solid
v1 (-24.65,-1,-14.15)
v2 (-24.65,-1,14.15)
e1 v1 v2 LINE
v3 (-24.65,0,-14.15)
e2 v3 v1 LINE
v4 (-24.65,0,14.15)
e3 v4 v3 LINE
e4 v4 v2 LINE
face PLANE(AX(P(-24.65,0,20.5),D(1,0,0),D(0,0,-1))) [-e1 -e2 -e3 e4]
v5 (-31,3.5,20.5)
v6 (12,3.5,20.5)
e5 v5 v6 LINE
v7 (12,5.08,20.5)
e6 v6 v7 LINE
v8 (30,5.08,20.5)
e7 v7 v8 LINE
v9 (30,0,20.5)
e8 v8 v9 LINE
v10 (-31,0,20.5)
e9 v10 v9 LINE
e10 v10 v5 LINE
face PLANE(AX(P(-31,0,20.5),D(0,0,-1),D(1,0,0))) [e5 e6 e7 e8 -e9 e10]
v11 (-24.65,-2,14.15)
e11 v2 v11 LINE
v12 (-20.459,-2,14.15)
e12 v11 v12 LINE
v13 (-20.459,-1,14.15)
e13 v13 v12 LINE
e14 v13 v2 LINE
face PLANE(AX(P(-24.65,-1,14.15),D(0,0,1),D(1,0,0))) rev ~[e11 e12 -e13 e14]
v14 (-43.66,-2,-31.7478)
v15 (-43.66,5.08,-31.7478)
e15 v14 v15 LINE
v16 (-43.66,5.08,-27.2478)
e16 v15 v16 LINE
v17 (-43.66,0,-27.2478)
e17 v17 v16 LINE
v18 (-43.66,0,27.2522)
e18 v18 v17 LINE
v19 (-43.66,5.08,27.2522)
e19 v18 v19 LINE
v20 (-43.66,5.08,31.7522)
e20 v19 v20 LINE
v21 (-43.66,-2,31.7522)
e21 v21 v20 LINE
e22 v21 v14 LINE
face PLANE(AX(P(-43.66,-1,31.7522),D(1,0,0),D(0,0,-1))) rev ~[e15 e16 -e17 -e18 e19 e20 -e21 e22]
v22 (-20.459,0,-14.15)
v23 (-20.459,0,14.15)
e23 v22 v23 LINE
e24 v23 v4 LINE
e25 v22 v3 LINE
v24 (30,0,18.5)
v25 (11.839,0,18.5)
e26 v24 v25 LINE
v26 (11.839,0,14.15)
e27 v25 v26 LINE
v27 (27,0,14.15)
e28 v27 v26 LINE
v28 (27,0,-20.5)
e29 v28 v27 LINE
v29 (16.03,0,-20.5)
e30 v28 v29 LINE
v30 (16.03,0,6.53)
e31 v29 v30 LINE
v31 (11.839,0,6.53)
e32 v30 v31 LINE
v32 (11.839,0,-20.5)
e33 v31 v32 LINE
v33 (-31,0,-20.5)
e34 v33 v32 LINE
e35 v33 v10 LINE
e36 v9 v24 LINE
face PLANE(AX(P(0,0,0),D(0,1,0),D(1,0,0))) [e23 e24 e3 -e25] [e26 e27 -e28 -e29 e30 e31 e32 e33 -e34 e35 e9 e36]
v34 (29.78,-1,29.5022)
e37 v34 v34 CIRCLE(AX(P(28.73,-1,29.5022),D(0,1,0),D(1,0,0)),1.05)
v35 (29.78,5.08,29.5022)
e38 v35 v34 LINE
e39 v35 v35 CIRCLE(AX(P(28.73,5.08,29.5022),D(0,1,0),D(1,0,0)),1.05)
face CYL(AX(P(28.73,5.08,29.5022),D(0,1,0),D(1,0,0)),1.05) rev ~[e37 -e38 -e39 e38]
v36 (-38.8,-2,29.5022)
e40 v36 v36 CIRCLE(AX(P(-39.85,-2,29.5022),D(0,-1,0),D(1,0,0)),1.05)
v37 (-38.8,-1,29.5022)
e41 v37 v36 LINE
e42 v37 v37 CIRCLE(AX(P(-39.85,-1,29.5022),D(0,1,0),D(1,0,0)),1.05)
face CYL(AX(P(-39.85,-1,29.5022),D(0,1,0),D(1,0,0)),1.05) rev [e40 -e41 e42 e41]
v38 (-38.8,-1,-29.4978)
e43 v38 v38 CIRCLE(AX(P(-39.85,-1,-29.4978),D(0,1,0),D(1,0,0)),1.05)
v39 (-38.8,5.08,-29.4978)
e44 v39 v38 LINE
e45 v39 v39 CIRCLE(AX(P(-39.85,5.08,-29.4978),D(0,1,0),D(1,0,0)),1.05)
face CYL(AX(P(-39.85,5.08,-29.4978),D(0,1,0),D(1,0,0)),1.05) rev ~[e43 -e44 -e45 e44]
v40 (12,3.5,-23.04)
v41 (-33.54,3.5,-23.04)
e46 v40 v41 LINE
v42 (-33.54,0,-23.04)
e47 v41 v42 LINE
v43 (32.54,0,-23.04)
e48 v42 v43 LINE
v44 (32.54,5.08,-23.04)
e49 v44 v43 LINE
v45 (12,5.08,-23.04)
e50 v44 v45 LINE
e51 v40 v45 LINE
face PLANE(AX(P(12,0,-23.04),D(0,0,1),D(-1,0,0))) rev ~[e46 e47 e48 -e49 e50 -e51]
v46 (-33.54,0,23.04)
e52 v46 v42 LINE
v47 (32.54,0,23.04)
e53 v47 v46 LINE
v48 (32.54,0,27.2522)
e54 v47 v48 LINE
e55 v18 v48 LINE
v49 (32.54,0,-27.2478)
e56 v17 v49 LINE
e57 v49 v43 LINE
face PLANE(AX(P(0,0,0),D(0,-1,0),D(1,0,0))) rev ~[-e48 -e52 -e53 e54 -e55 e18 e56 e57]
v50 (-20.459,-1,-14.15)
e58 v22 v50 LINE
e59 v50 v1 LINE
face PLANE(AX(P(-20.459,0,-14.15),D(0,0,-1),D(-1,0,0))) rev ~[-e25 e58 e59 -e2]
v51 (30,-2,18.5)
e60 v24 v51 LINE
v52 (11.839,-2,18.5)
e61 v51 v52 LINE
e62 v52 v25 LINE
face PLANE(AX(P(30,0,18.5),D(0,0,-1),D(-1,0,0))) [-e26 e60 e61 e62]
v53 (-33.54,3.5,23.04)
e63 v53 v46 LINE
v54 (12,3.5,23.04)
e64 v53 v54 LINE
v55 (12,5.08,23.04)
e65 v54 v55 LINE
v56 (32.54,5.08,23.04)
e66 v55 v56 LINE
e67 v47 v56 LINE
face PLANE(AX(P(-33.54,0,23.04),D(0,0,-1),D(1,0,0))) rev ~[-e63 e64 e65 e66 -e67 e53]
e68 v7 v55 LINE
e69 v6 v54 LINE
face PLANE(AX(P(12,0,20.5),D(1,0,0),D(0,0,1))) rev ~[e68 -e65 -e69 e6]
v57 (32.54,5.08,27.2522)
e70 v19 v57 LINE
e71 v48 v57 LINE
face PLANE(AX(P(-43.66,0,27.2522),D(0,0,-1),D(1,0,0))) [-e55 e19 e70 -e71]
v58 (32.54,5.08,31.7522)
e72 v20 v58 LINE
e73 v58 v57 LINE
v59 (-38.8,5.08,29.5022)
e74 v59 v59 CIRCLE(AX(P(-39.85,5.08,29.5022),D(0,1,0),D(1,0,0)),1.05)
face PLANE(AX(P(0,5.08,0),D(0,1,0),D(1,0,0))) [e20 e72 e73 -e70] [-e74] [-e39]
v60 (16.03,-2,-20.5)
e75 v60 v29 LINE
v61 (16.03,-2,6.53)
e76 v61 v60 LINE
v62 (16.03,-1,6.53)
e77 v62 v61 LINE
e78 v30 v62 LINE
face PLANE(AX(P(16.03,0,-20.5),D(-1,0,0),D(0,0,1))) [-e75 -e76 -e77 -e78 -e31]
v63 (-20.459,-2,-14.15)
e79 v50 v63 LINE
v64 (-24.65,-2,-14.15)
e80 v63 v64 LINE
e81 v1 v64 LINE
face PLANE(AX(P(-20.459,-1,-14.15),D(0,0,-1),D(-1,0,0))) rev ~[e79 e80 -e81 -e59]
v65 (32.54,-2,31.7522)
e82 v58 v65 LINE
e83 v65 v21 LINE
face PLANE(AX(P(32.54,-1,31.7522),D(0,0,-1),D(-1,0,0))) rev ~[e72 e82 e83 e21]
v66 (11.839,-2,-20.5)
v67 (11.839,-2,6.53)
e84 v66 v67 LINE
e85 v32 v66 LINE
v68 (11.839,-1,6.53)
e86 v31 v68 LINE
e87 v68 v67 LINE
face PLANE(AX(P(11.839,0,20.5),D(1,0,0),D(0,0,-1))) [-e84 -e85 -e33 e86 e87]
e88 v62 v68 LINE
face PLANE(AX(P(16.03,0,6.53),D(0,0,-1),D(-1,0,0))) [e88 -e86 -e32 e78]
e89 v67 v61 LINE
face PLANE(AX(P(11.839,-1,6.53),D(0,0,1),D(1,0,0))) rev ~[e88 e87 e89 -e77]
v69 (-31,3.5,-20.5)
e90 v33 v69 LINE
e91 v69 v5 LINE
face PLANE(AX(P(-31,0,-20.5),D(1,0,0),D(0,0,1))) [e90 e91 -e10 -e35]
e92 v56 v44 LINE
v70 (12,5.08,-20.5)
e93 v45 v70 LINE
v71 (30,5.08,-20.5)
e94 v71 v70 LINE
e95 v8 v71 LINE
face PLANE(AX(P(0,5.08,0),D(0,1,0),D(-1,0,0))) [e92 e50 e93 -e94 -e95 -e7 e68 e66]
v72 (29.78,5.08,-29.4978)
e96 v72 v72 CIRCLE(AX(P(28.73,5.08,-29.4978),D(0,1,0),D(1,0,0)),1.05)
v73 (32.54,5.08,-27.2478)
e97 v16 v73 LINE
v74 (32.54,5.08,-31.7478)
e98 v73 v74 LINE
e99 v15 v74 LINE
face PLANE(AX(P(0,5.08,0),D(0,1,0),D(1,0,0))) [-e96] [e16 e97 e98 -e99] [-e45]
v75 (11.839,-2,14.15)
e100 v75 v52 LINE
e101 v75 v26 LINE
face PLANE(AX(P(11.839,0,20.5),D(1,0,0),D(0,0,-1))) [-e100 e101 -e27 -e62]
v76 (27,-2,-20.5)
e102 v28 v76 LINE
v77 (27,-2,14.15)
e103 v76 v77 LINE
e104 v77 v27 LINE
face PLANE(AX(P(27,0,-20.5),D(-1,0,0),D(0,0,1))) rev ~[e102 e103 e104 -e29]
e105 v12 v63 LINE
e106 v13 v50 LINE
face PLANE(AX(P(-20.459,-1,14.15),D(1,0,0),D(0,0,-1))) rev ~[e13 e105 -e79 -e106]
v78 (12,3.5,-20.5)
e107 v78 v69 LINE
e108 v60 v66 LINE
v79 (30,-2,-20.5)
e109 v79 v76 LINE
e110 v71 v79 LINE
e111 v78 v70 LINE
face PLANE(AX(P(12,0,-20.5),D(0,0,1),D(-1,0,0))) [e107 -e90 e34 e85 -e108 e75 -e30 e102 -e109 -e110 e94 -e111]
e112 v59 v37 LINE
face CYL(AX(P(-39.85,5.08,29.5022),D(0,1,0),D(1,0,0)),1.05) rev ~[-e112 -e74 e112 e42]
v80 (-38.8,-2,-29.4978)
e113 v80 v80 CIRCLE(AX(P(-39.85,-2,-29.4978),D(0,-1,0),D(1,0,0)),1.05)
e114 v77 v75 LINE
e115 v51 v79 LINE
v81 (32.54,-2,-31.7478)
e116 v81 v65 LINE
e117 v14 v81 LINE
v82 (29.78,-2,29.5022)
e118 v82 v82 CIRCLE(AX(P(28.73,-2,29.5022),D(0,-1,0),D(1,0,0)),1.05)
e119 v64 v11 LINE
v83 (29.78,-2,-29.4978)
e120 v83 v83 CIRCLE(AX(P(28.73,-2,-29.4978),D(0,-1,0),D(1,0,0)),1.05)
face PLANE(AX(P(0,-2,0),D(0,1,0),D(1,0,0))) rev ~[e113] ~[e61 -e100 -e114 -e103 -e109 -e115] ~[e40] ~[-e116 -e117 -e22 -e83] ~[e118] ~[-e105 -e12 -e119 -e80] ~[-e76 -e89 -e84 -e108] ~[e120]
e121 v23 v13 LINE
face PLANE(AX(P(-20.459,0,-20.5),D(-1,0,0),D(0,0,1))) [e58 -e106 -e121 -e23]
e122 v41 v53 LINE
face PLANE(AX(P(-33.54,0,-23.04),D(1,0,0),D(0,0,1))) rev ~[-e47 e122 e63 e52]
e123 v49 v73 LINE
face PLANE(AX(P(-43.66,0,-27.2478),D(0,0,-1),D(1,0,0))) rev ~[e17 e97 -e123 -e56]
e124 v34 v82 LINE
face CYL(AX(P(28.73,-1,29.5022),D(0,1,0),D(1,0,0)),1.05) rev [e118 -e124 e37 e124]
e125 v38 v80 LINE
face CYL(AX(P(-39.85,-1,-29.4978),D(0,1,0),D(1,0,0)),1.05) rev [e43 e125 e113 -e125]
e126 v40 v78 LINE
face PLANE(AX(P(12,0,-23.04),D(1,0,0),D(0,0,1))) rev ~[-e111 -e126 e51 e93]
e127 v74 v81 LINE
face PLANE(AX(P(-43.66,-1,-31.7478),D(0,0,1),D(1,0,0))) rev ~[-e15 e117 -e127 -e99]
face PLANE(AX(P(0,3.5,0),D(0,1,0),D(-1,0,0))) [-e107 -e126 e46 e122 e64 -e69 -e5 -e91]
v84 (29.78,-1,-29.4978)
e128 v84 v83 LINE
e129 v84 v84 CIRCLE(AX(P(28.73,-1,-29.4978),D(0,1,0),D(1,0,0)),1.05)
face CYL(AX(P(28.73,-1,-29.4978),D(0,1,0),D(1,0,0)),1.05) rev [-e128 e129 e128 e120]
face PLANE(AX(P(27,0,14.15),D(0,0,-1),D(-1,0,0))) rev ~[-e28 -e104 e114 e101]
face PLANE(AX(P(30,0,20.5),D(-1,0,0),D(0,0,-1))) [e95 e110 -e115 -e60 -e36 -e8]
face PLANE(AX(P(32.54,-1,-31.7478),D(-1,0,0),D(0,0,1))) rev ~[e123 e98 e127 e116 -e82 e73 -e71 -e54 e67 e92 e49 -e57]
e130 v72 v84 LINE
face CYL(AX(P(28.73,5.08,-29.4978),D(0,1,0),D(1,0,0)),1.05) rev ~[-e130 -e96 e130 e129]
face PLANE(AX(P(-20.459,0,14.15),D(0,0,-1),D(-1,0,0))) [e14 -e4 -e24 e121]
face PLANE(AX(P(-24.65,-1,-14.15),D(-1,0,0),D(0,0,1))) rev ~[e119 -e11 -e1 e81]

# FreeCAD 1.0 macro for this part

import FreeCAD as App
import Part
import Sketcher

V = App.Vector
Q = App.Units.Quantity

doc = App.newDocument("Part")
params = doc.addObject("Spreadsheet::Sheet", "Params")
for row, (alias, value) in enumerate([
    ("sketch1_height", "0.1 in"),
    ("pad1_length", "0.1377953 in"),
    ("sketch2_height", "0.1 in"),
    ("pad2_length", "0.2 in"),
    ("pad3_length", "1 mm"),
    ("sketch4_width", "0.165 in"),
    ("pocket1_length", "1 in"),
    ("pocket2_length", "1 in"),
    ("sketch6_height", "0.15 in"),
    ("pocket3_length", "1 in"),
    ("sketch7_width", "3 in"),
    ("sketch7_height", "2.5 in"),
    ("sketch7_height2", "0.343 in"),
    ("pad4_length", "1 mm"),
    ("sketch8_width", "3 in"),
    ("pad5_length", "0.2 in"),
    ("pocket4_length", "1 in"),
    ("sketch10_height", "0.1 in"),
    ("pocket5_length", "1 in"),
    ("sketch11_height", "0.3 in"),
    ("sketch11_height2", "0.25 in"),
    ("sketch11_width", "0.165 in"),
    ("pad6_length", "1 mm"),
    ("sketch12_width", "3 in"),
    ("sketch12_height", "2.5 in"),
    ("sketch12_height2", "0.25 in"),
    ("sketch12_width2", "0.165 in"),
    ("sketch12_width3", "0.715 in"),
    ("pad7_length", "1 mm"),
    ("sketch13_width", "0.715 in"),
    ("pad8_length", "2 mm"),
], start=1):
    params.set(f"A{row}", alias)
    params.set(f"B{row}", "=" + value)
    params.setAlias(f"B{row}", alias)

body = doc.addObject("PartDesign::Body", "Body")

sketch1 = body.newObject("Sketcher::SketchObject", "Sketch")
sketch1.AttachmentSupport = (doc.getObject("XZ_Plane"), [""])
sketch1.MapMode = "FlatFace"
sketch1.addGeometry(Part.LineSegment(V(12, 20.5, 0), V(-31, 20.5, 0)), False)
sketch1.addGeometry(Part.LineSegment(V(-31, 20.5, 0), V(-31, -20.5, 0)), False)
sketch1.addGeometry(Part.LineSegment(V(-31, -20.5, 0), V(12, -20.5, 0)), False)
sketch1.addGeometry(Part.LineSegment(V(12, -20.5, 0), V(12, -23, 0)), False)
sketch1.addGeometry(Part.LineSegment(V(12, -23, 0), V(-33.5, -23, 0)), False)
sketch1.addGeometry(Part.LineSegment(V(-33.5, -23, 0), V(-33.5, 23, 0)), False)
sketch1.addGeometry(Part.LineSegment(V(-33.5, 23, 0), V(12, 23, 0)), False)
sketch1.addGeometry(Part.LineSegment(V(12, 23, 0), V(12, 20.5, 0)), False)
sketch1.addConstraint(Sketcher.Constraint("Coincident", 0, 2, 1, 1))
sketch1.addConstraint(Sketcher.Constraint("Coincident", 1, 2, 2, 1))
sketch1.addConstraint(Sketcher.Constraint("Coincident", 2, 2, 3, 1))
sketch1.addConstraint(Sketcher.Constraint("Coincident", 3, 2, 4, 1))
sketch1.addConstraint(Sketcher.Constraint("Coincident", 4, 2, 5, 1))
sketch1.addConstraint(Sketcher.Constraint("Coincident", 5, 2, 6, 1))
sketch1.addConstraint(Sketcher.Constraint("Coincident", 6, 2, 7, 1))
sketch1.addConstraint(Sketcher.Constraint("Coincident", 7, 2, 0, 1))
sketch1.addConstraint(Sketcher.Constraint("Horizontal", 0))
sketch1.addConstraint(Sketcher.Constraint("Vertical", 1))
sketch1.addConstraint(Sketcher.Constraint("Horizontal", 2))
sketch1.addConstraint(Sketcher.Constraint("Vertical", 3))
sketch1.addConstraint(Sketcher.Constraint("Horizontal", 4))
sketch1.addConstraint(Sketcher.Constraint("Vertical", 5))
sketch1.addConstraint(Sketcher.Constraint("Horizontal", 6))
sketch1.addConstraint(Sketcher.Constraint("Vertical", 7))
sketch1.addConstraint(Sketcher.Constraint("Symmetric", 3, 2, 6, 2, -1))
sketch1.addConstraint(Sketcher.Constraint("Equal", 3, 7))
sketch1.addConstraint(Sketcher.Constraint("DistanceY", 3, 2, 3, 1, Q("0.1 in")))
sketch1.addConstraint(Sketcher.Constraint("DistanceX", 4, 2, 1, 2, Q("0.1 in")))
sketch1.addConstraint(Sketcher.Constraint("DistanceY", 1, 2, 1, 1, 41.0))
sketch1.addConstraint(Sketcher.Constraint("DistanceX", 0, 2, -1, 1, 31.0))
sketch1.addConstraint(Sketcher.Constraint("DistanceX", 0, 2, 0, 1, 43.0))
sketch1.setExpression("Constraints[18]", "Params.sketch1_height")
pad1 = body.newObject("PartDesign::Pad", "Pad")
pad1.Profile = sketch1
pad1.setExpression("Length", "Params.pad1_length")
pad1.Reversed = True

sketch2 = body.newObject("Sketcher::SketchObject", "Sketch001")
sketch2.AttachmentSupport = (doc.getObject("XZ_Plane"), [""])
sketch2.MapMode = "FlatFace"
sketch2.addGeometry(Part.LineSegment(V(30, 20.5, 0), V(12, 20.5, 0)), False)
sketch2.addGeometry(Part.LineSegment(V(12, 20.5, 0), V(12, 23, 0)), False)
sketch2.addGeometry(Part.LineSegment(V(12, 23, 0), V(32.5, 23, 0)), False)
sketch2.addGeometry(Part.LineSegment(V(32.5, 23, 0), V(32.5, -23, 0)), False)
sketch2.addGeometry(Part.LineSegment(V(32.5, -23, 0), V(12, -23, 0)), False)
sketch2.addGeometry(Part.LineSegment(V(12, -23, 0), V(12, -20.5, 0)), False)
sketch2.addGeometry(Part.LineSegment(V(12, -20.5, 0), V(30, -20.5, 0)), False)
sketch2.addGeometry(Part.LineSegment(V(30, -20.5, 0), V(30, 20.5, 0)), False)
sketch2.addConstraint(Sketcher.Constraint("Coincident", 0, 2, 1, 1))
sketch2.addConstraint(Sketcher.Constraint("Coincident", 1, 2, 2, 1))
sketch2.addConstraint(Sketcher.Constraint("Coincident", 2, 2, 3, 1))
sketch2.addConstraint(Sketcher.Constraint("Coincident", 3, 2, 4, 1))
sketch2.addConstraint(Sketcher.Constraint("Coincident", 4, 2, 5, 1))
sketch2.addConstraint(Sketcher.Constraint("Coincident", 5, 2, 6, 1))
sketch2.addConstraint(Sketcher.Constraint("Coincident", 6, 2, 7, 1))
sketch2.addConstraint(Sketcher.Constraint("Coincident", 7, 2, 0, 1))
sketch2.addConstraint(Sketcher.Constraint("Horizontal", 0))
sketch2.addConstraint(Sketcher.Constraint("Vertical", 1))
sketch2.addConstraint(Sketcher.Constraint("Horizontal", 2))
sketch2.addConstraint(Sketcher.Constraint("Vertical", 3))
sketch2.addConstraint(Sketcher.Constraint("Horizontal", 4))
sketch2.addConstraint(Sketcher.Constraint("Vertical", 5))
sketch2.addConstraint(Sketcher.Constraint("Horizontal", 6))
sketch2.addConstraint(Sketcher.Constraint("Vertical", 7))
sketch2.addConstraint(Sketcher.Constraint("Symmetric", 1, 2, 4, 2, -1))
sketch2.addConstraint(Sketcher.Constraint("Equal", 1, 5))
sketch2.addConstraint(Sketcher.Constraint("DistanceY", 1, 1, 1, 2, Q("0.1 in")))
sketch2.addConstraint(Sketcher.Constraint("DistanceX", 6, 2, 3, 2, Q("0.1 in")))
sketch2.addConstraint(Sketcher.Constraint("DistanceX", 0, 2, 0, 1, 18.0))
sketch2.addConstraint(Sketcher.Constraint("DistanceY", 3, 2, 3, 1, 46.08))
sketch2.addConstraint(Sketcher.Constraint("DistanceX", -1, 1, 2, 2, Q("1.2811 in")))
sketch2.setExpression("Constraints[18]", "Params.sketch2_height")
pad2 = body.newObject("PartDesign::Pad", "Pad001")
pad2.Profile = sketch2
pad2.setExpression("Length", "Params.pad2_length")
pad2.Reversed = True

sketch3 = body.newObject("Sketcher::SketchObject", "Sketch002")
sketch3.AttachmentSupport = (doc.getObject("XZ_Plane"), [""])
sketch3.MapMode = "FlatFace"
sketch3.addGeometry(Part.LineSegment(V(-34, -23, 0), V(33, -23, 0)), False)
sketch3.addGeometry(Part.LineSegment(V(33, -23, 0), V(33, 23, 0)), False)
sketch3.addGeometry(Part.LineSegment(V(33, 23, 0), V(-34, 23, 0)), False)
sketch3.addGeometry(Part.LineSegment(V(-34, 23, 0), V(-34, -23, 0)), False)
sketch3.addConstraint(Sketcher.Constraint("Coincident", 0, 2, 1, 1))
sketch3.addConstraint(Sketcher.Constraint("Coincident", 1, 2, 2, 1))
sketch3.addConstraint(Sketcher.Constraint("Coincident", 2, 2, 3, 1))
sketch3.addConstraint(Sketcher.Constraint("Coincident", 3, 2, 0, 1))
sketch3.addConstraint(Sketcher.Constraint("Horizontal", 0))
sketch3.addConstraint(Sketcher.Constraint("Vertical", 1))
sketch3.addConstraint(Sketcher.Constraint("Horizontal", 2))
sketch3.addConstraint(Sketcher.Constraint("Vertical", 3))
sketch3.addConstraint(Sketcher.Constraint("DistanceX", 0, 1, 0, 2, 66.08))
sketch3.addConstraint(Sketcher.Constraint("DistanceY", 1, 1, 1, 2, 46.08))
sketch3.addConstraint(Sketcher.Constraint("DistanceX", -1, 1, 0, 2, Q("1.2811 in")))
sketch3.addConstraint(Sketcher.Constraint("DistanceY", 0, 2, -1, 1, 23.04))
pad3 = body.newObject("PartDesign::Pad", "Pad002")
pad3.Profile = sketch3
pad3.setExpression("Length", "Params.pad3_length")

sketch4 = body.newObject("Sketcher::SketchObject", "Sketch003")
sketch4.AttachmentSupport = (doc.getObject("XZ_Plane"), [""])
sketch4.MapMode = "FlatFace"
sketch4.addGeometry(Part.LineSegment(V(11.8, 20.5, 0), V(16, 20.5, 0)), False)
sketch4.addGeometry(Part.LineSegment(V(16, 20.5, 0), V(16, -20.5, 0)), False)
sketch4.addGeometry(Part.LineSegment(V(16, -20.5, 0), V(11.8, -20.5, 0)), False)
sketch4.addGeometry(Part.LineSegment(V(11.8, -20.5, 0), V(11.8, 20.5, 0)), False)
sketch4.addGeometry(Part.LineSegment(V(-24.6, 20.5, 0), V(-20.5, 20.5, 0)), False)
sketch4.addGeometry(Part.LineSegment(V(-20.5, 20.5, 0), V(-20.5, -20.5, 0)), False)
sketch4.addGeometry(Part.LineSegment(V(-20.5, -20.5, 0), V(-24.6, -20.5, 0)), False)
sketch4.addGeometry(Part.LineSegment(V(-24.6, -20.5, 0), V(-24.6, 20.5, 0)), False)
sketch4.addConstraint(Sketcher.Constraint("Coincident", 0, 2, 1, 1))
sketch4.addConstraint(Sketcher.Constraint("Coincident", 1, 2, 2, 1))
sketch4.addConstraint(Sketcher.Constraint("Coincident", 2, 2, 3, 1))
sketch4.addConstraint(Sketcher.Constraint("Coincident", 3, 2, 0, 1))
sketch4.addConstraint(Sketcher.Constraint("Coincident", 4, 2, 5, 1))
sketch4.addConstraint(Sketcher.Constraint("Coincident", 5, 2, 6, 1))
sketch4.addConstraint(Sketcher.Constraint("Coincident", 6, 2, 7, 1))
sketch4.addConstraint(Sketcher.Constraint("Coincident", 7, 2, 4, 1))
sketch4.addConstraint(Sketcher.Constraint("Horizontal", 0))
sketch4.addConstraint(Sketcher.Constraint("Vertical", 1))
sketch4.addConstraint(Sketcher.Constraint("Horizontal", 2))
sketch4.addConstraint(Sketcher.Constraint("Vertical", 3))
sketch4.addConstraint(Sketcher.Constraint("Horizontal", 4))
sketch4.addConstraint(Sketcher.Constraint("Vertical", 5))
sketch4.addConstraint(Sketcher.Constraint("Horizontal", 6))
sketch4.addConstraint(Sketcher.Constraint("Vertical", 7))
sketch4.addConstraint(Sketcher.Constraint("Horizontal", 3, 2, 4, 2))
sketch4.addConstraint(Sketcher.Constraint("Horizontal", 2, 2, 5, 2))
sketch4.addConstraint(Sketcher.Constraint("Equal", 2, 4))
sketch4.addConstraint(Sketcher.Constraint("DistanceX", 0, 1, 0, 2, Q("0.165 in")))
sketch4.addConstraint(Sketcher.Constraint("DistanceY", 1, 2, 1, 1, 41.0))
sketch4.addConstraint(Sketcher.Constraint("DistanceX", -1, 1, 0, 2, Q("0.6311 in")))
sketch4.addConstraint(Sketcher.Constraint("DistanceY", -1, 1, 0, 2, 20.5))
sketch4.addConstraint(Sketcher.Constraint("DistanceX", 4, 2, -1, 1, 20.459))
sketch4.setExpression("Constraints[19]", "Params.sketch4_width")
pocket1 = body.newObject("PartDesign::Pocket", "Pocket")
pocket1.Profile = sketch4
pocket1.setExpression("Length", "Params.pocket1_length")
pocket1.Reversed = True

sketch5 = body.newObject("Sketcher::SketchObject", "Sketch004")
sketch5.AttachmentSupport = (doc.getObject("XZ_Plane"), [""])
sketch5.MapMode = "FlatFace"
sketch5.addGeometry(Part.LineSegment(V(30, 20.5, 0), V(30, -20.5, 0)), False)
sketch5.addGeometry(Part.LineSegment(V(30, -20.5, 0), V(27, -20.5, 0)), False)
sketch5.addGeometry(Part.LineSegment(V(27, -20.5, 0), V(27, 20.5, 0)), False)
sketch5.addGeometry(Part.LineSegment(V(27, 20.5, 0), V(30, 20.5, 0)), False)
sketch5.addConstraint(Sketcher.Constraint("Coincident", 0, 2, 1, 1))
sketch5.addConstraint(Sketcher.Constraint("Coincident", 1, 2, 2, 1))
sketch5.addConstraint(Sketcher.Constraint("Coincident", 2, 2, 3, 1))
sketch5.addConstraint(Sketcher.Constraint("Coincident", 3, 2, 0, 1))
sketch5.addConstraint(Sketcher.Constraint("Vertical", 0))
sketch5.addConstraint(Sketcher.Constraint("Horizontal", 1))
sketch5.addConstraint(Sketcher.Constraint("Vertical", 2))
sketch5.addConstraint(Sketcher.Constraint("Horizontal", 3))
sketch5.addConstraint(Sketcher.Constraint("DistanceX", 1, 2, 1, 1, Q("0.1181 in")))
sketch5.addConstraint(Sketcher.Constraint("DistanceX", -1, 1, 1, 2, Q("1.063 in")))
sketch5.addConstraint(Sketcher.Constraint("DistanceY", 0, 2, 0, 1, 41.0))
sketch5.addConstraint(Sketcher.Constraint("DistanceY", 0, 2, -1, 1, 20.5))
pocket2 = body.newObject("PartDesign::Pocket", "Pocket001")
pocket2.Profile = sketch5
pocket2.setExpression("Length", "Params.pocket2_length")
pocket2.Reversed = True

sketch6 = body.newObject("Sketcher::SketchObject", "Sketch005")
sketch6.AttachmentSupport = (doc.getObject("XZ_Plane"), [""])
sketch6.MapMode = "FlatFace"
sketch6.addGeometry(Part.LineSegment(V(16, 20.5, 0), V(27, 20.5, 0)), False)
sketch6.addGeometry(Part.LineSegment(V(27, 20.5, 0), V(27, 16.7, 0)), False)
sketch6.addGeometry(Part.LineSegment(V(27, 16.7, 0), V(16, 16.7, 0)), False)
sketch6.addGeometry(Part.LineSegment(V(16, 16.7, 0), V(16, 20.5, 0)), False)
sketch6.addConstraint(Sketcher.Constraint("Coincident", 0, 2, 1, 1))
sketch6.addConstraint(Sketcher.Constraint("Coincident", 1, 2, 2, 1))
sketch6.addConstraint(Sketcher.Constraint("Coincident", 2, 2, 3, 1))
sketch6.addConstraint(Sketcher.Constraint("Coincident", 3, 2, 0, 1))
sketch6.addConstraint(Sketcher.Constraint("Horizontal", 0))
sketch6.addConstraint(Sketcher.Constraint("Vertical", 1))
sketch6.addConstraint(Sketcher.Constraint("Horizontal", 2))
sketch6.addConstraint(Sketcher.Constraint("Vertical", 3))
sketch6.addConstraint(Sketcher.Constraint("DistanceY", 1, 2, 1, 1, Q("0.15 in")))
sketch6.addConstraint(Sketcher.Constraint("DistanceX", 0, 1, 0, 2, Q("0.4319 in")))
sketch6.addConstraint(Sketcher.Constraint("DistanceX", -1, 1, 0, 2, Q("1.063 in")))
sketch6.addConstraint(Sketcher.Constraint("DistanceY", -1, 1, 0, 2, 20.5))
sketch6.setExpression("Constraints[8]", "Params.sketch6_height")
pocket3 = body.newObject("PartDesign::Pocket", "Pocket002")
pocket3.Profile = sketch6
pocket3.setExpression("Length", "Params.pocket3_length")
pocket3.Reversed = True

sketch7 = body.newObject("Sketcher::SketchObject", "Sketch006")
sketch7.AttachmentSupport = (doc.getObject("XZ_Plane"), [""])
sketch7.MapMode = "FlatFace"
sketch7.AttachmentOffset = App.Placement(V(0, 0, 1), App.Rotation())
sketch7.addGeometry(Part.LineSegment(V(33, 23, 0), V(33, 32, 0)), False)
sketch7.addGeometry(Part.LineSegment(V(33, 32, 0), V(-44, 32, 0)), False)
sketch7.addGeometry(Part.LineSegment(V(-44, 32, 0), V(-44, -32, 0)), False)
sketch7.addGeometry(Part.LineSegment(V(-44, -32, 0), V(33, -32, 0)), False)
sketch7.addGeometry(Part.LineSegment(V(33, -32, 0), V(33, -23, 0)), False)
sketch7.addGeometry(Part.LineSegment(V(33, -23, 0), V(-34, -23, 0)), False)
sketch7.addGeometry(Part.LineSegment(V(-34, -23, 0), V(-34, 23, 0)), False)
sketch7.addGeometry(Part.LineSegment(V(-34, 23, 0), V(33, 23, 0)), False)
sketch7.addConstraint(Sketcher.Constraint("Coincident", 0, 2, 1, 1))
sketch7.addConstraint(Sketcher.Constraint("Coincident", 1, 2, 2, 1))
sketch7.addConstraint(Sketcher.Constraint("Coincident", 2, 2, 3, 1))
sketch7.addConstraint(Sketcher.Constraint("Coincident", 3, 2, 4, 1))
sketch7.addConstraint(Sketcher.Constraint("Coincident", 4, 2, 5, 1))
sketch7.addConstraint(Sketcher.Constraint("Coincident", 5, 2, 6, 1))
sketch7.addConstraint(Sketcher.Constraint("Coincident", 6, 2, 7, 1))
sketch7.addConstraint(Sketcher.Constraint("Coincident", 7, 2, 0, 1))
sketch7.addConstraint(Sketcher.Constraint("Vertical", 0))
sketch7.addConstraint(Sketcher.Constraint("Horizontal", 1))
sketch7.addConstraint(Sketcher.Constraint("Vertical", 2))
sketch7.addConstraint(Sketcher.Constraint("Horizontal", 3))
sketch7.addConstraint(Sketcher.Constraint("Vertical", 4))
sketch7.addConstraint(Sketcher.Constraint("Horizontal", 5))
sketch7.addConstraint(Sketcher.Constraint("Vertical", 6))
sketch7.addConstraint(Sketcher.Constraint("Horizontal", 7))
sketch7.addConstraint(Sketcher.Constraint("Symmetric", 4, 2, 7, 2, -1))
sketch7.addConstraint(Sketcher.Constraint("DistanceX", 1, 2, 1, 1, Q("3 in")))
sketch7.addConstraint(Sketcher.Constraint("DistanceY", 2, 2, 2, 1, Q("2.5 in")))
sketch7.addConstraint(Sketcher.Constraint("DistanceY", 0, 1, 0, 2, Q("0.343 in")))
sketch7.addConstraint(Sketcher.Constraint("DistanceY", 4, 1, 4, 2, 8.7078))
sketch7.addConstraint(Sketcher.Constraint("DistanceX", 5, 2, 5, 1, 66.08))
sketch7.addConstraint(Sketcher.Constraint("DistanceX", -1, 1, 0, 2, Q("1.2811 in")))
sketch7.setExpression("Constraints[17]", "Params.sketch7_width")
sketch7.setExpression("Constraints[18]", "Params.sketch7_height")
sketch7.setExpression("Constraints[19]", "Params.sketch7_height2")
pad4 = body.newObject("PartDesign::Pad", "Pad003")
pad4.Profile = sketch7
pad4.setExpression("Length", "Params.pad4_length")
pad4.Reversed = True

sketch8 = body.newObject("Sketcher::SketchObject", "Sketch007")
sketch8.AttachmentSupport = (doc.getObject("XZ_Plane"), [""])
sketch8.MapMode = "FlatFace"
sketch8.addGeometry(Part.LineSegment(V(32.5, -31.7, 0), V(-43.7, -31.7, 0)), False)
sketch8.addGeometry(Part.LineSegment(V(-43.7, -31.7, 0), V(-43.7, -27.2, 0)), False)
sketch8.addGeometry(Part.LineSegment(V(-43.7, -27.2, 0), V(32.5, -27.2, 0)), False)
sketch8.addGeometry(Part.LineSegment(V(32.5, -27.2, 0), V(32.5, -31.7, 0)), False)
sketch8.addGeometry(Part.Circle(V(-39.9, -29.5, 0), V(0, 0, 1), 1.1), False)
sketch8.addGeometry(Part.Circle(V(28.7, -29.5, 0), V(0, 0, 1), 1.1), False)
sketch8.addGeometry(Part.LineSegment(V(32.5, 27.3, 0), V(-43.7, 27.3, 0)), False)
sketch8.addGeometry(Part.LineSegment(V(-43.7, 27.3, 0), V(-43.7, 31.8, 0)), False)
sketch8.addGeometry(Part.LineSegment(V(-43.7, 31.8, 0), V(32.5, 31.8, 0)), False)
sketch8.addGeometry(Part.LineSegment(V(32.5, 31.8, 0), V(32.5, 27.3, 0)), False)
sketch8.addGeometry(Part.Circle(V(-39.9, 29.5, 0), V(0, 0, 1), 1.1), False)
sketch8.addGeometry(Part.Circle(V(28.7, 29.5, 0), V(0, 0, 1), 1.1), False)
sketch8.addConstraint(Sketcher.Constraint("Coincident", 0, 2, 1, 1))
sketch8.addConstraint(Sketcher.Constraint("Coincident", 1, 2, 2, 1))
sketch8.addConstraint(Sketcher.Constraint("Coincident", 2, 2, 3, 1))
sketch8.addConstraint(Sketcher.Constraint("Coincident", 3, 2, 0, 1))
sketch8.addConstraint(Sketcher.Constraint("Coincident", 6, 2, 7, 1))
sketch8.addConstraint(Sketcher.Constraint("Coincident", 7, 2, 8, 1))
sketch8.addConstraint(Sketcher.Constraint("Coincident", 8, 2, 9, 1))
sketch8.addConstraint(Sketcher.Constraint("Coincident", 9, 2, 6, 1))
sketch8.addConstraint(Sketcher.Constraint("Horizontal", 0))
sketch8.addConstraint(Sketcher.Constraint("Vertical", 1))
sketch8.addConstraint(Sketcher.Constraint("Horizontal", 2))
sketch8.addConstraint(Sketcher.Constraint("Vertical", 3))
sketch8.addConstraint(Sketcher.Constraint("Horizontal", 6))
sketch8.addConstraint(Sketcher.Constraint("Vertical", 7))
sketch8.addConstraint(Sketcher.Constraint("Horizontal", 8))
sketch8.addConstraint(Sketcher.Constraint("Vertical", 9))
sketch8.addConstraint(Sketcher.Constraint("Equal", 4, 5))
sketch8.addConstraint(Sketcher.Constraint("Equal", 5, 10))
sketch8.addConstraint(Sketcher.Constraint("Equal", 10, 11))
sketch8.addConstraint(Sketcher.Constraint("Horizontal", 4, 3, 5, 3))
sketch8.addConstraint(Sketcher.Constraint("Horizontal", 10, 3, 11, 3))
sketch8.addConstraint(Sketcher.Constraint("Vertical", 4, 3, 10, 3))
sketch8.addConstraint(Sketcher.Constraint("Vertical", 5, 3, 11, 3))
sketch8.addConstraint(Sketcher.Constraint("Vertical", 1, 2, 6, 2))
sketch8.addConstraint(Sketcher.Constraint("Vertical", 3, 2, 8, 2))
sketch8.addConstraint(Sketcher.Constraint("Equal", 3, 7))
sketch8.addConstraint(Sketcher.Constraint("Diameter", 4, 2.1))
sketch8.addConstraint(Sketcher.Constraint("DistanceX", 0, 2, 0, 1, Q("3 in")))
sketch8.addConstraint(Sketcher.Constraint("DistanceX", 0, 2, 4, 3, Q("0.15 in")))
sketch8.addConstraint(Sketcher.Constraint("DistanceX", 5, 3, 2, 2, Q("0.15 in")))
sketch8.addConstraint(Sketcher.Constraint("DistanceY", 1, 1, 1, 2, 4.5))
sketch8.addConstraint(Sketcher.Constraint("DistanceY", 0, 2, 7, 2, Q("2.5 in")))
sketch8.addConstraint(Sketcher.Constraint("DistanceY", 0, 2, 4, 3, 2.25))
sketch8.addConstraint(Sketcher.Constraint("DistanceY", 6, 2, 10, 3, 2.25))
sketch8.addConstraint(Sketcher.Constraint("DistanceX", 4, 3, -1, 1, Q("1.5689 in")))
sketch8.addConstraint(Sketcher.Constraint("DistanceY", -1, 1, 10, 3, Q("1.1615 in")))
sketch8.setExpression("Constraints[27]", "Params.sketch8_width")
pad5 = body.newObject("PartDesign::Pad", "Pad004")
pad5.Profile = sketch8
pad5.setExpression("Length", "Params.pad5_length")
pad5.Reversed = True

sketch9 = body.newObject("Sketcher::SketchObject", "Sketch008")
sketch9.AttachmentSupport = (doc.getObject("XZ_Plane"), [""])
sketch9.MapMode = "FlatFace"
sketch9.AttachmentOffset = App.Placement(V(0, 0, -0.2 * 25.4), App.Rotation())
sketch9.addGeometry(Part.Circle(V(-39.9, -29.5, 0), V(0, 0, 1), 1.1), False)
sketch9.addGeometry(Part.Circle(V(28.7, -29.5, 0), V(0, 0, 1), 1.1), False)
sketch9.addGeometry(Part.Circle(V(28.7, 29.5, 0), V(0, 0, 1), 1.1), False)
sketch9.addGeometry(Part.Circle(V(-39.9, 29.5, 0), V(0, 0, 1), 1.1), False)
sketch9.addConstraint(Sketcher.Constraint("Equal", 0, 1))
sketch9.addConstraint(Sketcher.Constraint("Equal", 1, 2))
sketch9.addConstraint(Sketcher.Constraint("Equal", 2, 3))
sketch9.addConstraint(Sketcher.Constraint("Horizontal", 0, 3, 1, 3))
sketch9.addConstraint(Sketcher.Constraint("Horizontal", 2, 3, 3, 3))
sketch9.addConstraint(Sketcher.Constraint("Vertical", 1, 3, 2, 3))
sketch9.addConstraint(Sketcher.Constraint("Vertical", 0, 3, 3, 3))
sketch9.addConstraint(Sketcher.Constraint("DistanceX", 0, 3, 1, 3, Q("2.7 in")))
sketch9.addConstraint(Sketcher.Constraint("Diameter", 0, 2.1))
sketch9.addConstraint(Sketcher.Constraint("DistanceX", 0, 3, -1, 1, Q("1.5689 in")))
sketch9.addConstraint(Sketcher.Constraint("DistanceY", -1, 1, 2, 3, Q("1.1615 in")))
sketch9.addConstraint(Sketcher.Constraint("DistanceY", 0, 3, -1, 1, 29.4978))
pocket4 = body.newObject("PartDesign::Pocket", "Pocket003")
pocket4.Profile = sketch9
pocket4.setExpression("Length", "Params.pocket4_length")
pocket4.Reversed = True

sketch10 = body.newObject("Sketcher::SketchObject", "Sketch009")
sketch10.AttachmentSupport = (doc.getObject("XZ_Plane"), [""])
sketch10.MapMode = "FlatFace"
sketch10.addGeometry(Part.LineSegment(V(16, 14.2, 0), V(16, 16.7, 0)), False)
sketch10.addGeometry(Part.LineSegment(V(16, 16.7, 0), V(27, 16.7, 0)), False)
sketch10.addGeometry(Part.LineSegment(V(27, 16.7, 0), V(27, 14.2, 0)), False)
sketch10.addGeometry(Part.LineSegment(V(27, 14.2, 0), V(16, 14.2, 0)), False)
sketch10.addConstraint(Sketcher.Constraint("Coincident", 0, 2, 1, 1))
sketch10.addConstraint(Sketcher.Constraint("Coincident", 1, 2, 2, 1))
sketch10.addConstraint(Sketcher.Constraint("Coincident", 2, 2, 3, 1))
sketch10.addConstraint(Sketcher.Constraint("Coincident", 3, 2, 0, 1))
sketch10.addConstraint(Sketcher.Constraint("Vertical", 0))
sketch10.addConstraint(Sketcher.Constraint("Horizontal", 1))
sketch10.addConstraint(Sketcher.Constraint("Vertical", 2))
sketch10.addConstraint(Sketcher.Constraint("Horizontal", 3))
sketch10.addConstraint(Sketcher.Constraint("DistanceY", 0, 1, 0, 2, Q("0.1 in")))
sketch10.addConstraint(Sketcher.Constraint("DistanceX", 1, 1, 1, 2, Q("0.4319 in")))
sketch10.addConstraint(Sketcher.Constraint("DistanceX", -1, 1, 1, 2, Q("1.063 in")))
sketch10.addConstraint(Sketcher.Constraint("DistanceY", -1, 1, 0, 2, 16.69))
sketch10.setExpression("Constraints[8]", "Params.sketch10_height")
pocket5 = body.newObject("PartDesign::Pocket", "Pocket004")
pocket5.Profile = sketch10
pocket5.setExpression("Length", "Params.pocket5_length")
pocket5.Reversed = True

sketch11 = body.newObject("Sketcher::SketchObject", "Sketch010")
sketch11.AttachmentSupport = (doc.getObject("XZ_Plane"), [""])
sketch11.MapMode = "FlatFace"
sketch11.addGeometry(Part.LineSegment(V(11.8, 14.2, 0), V(16, 14.2, 0)), False)
sketch11.addGeometry(Part.LineSegment(V(16, 14.2, 0), V(16, 6.5, 0)), False)
sketch11.addGeometry(Part.LineSegment(V(16, 6.5, 0), V(11.8, 6.5, 0)), False)
sketch11.addGeometry(Part.LineSegment(V(11.8, 6.5, 0), V(11.8, 14.2, 0)), False)
sketch11.addGeometry(Part.LineSegment(V(-24.6, 14.2, 0), V(-24.6, 20.5, 0)), False)
sketch11.addGeometry(Part.LineSegment(V(-24.6, 20.5, 0), V(-20.5, 20.5, 0)), False)
sketch11.addGeometry(Part.LineSegment(V(-20.5, 20.5, 0), V(-20.5, 14.2, 0)), False)
sketch11.addGeometry(Part.LineSegment(V(-20.5, 14.2, 0), V(-24.6, 14.2, 0)), False)
sketch11.addGeometry(Part.LineSegment(V(-24.6, -20.5, 0), V(-24.6, -14.2, 0)), False)
sketch11.addGeometry(Part.LineSegment(V(-24.6, -14.2, 0), V(-20.5, -14.2, 0)), False)
sketch11.addGeometry(Part.LineSegment(V(-20.5, -14.2, 0), V(-20.5, -20.5, 0)), False)
sketch11.addGeometry(Part.LineSegment(V(-20.5, -20.5, 0), V(-24.6, -20.5, 0)), False)
sketch11.addConstraint(Sketcher.Constraint("Coincident", 0, 2, 1, 1))
sketch11.addConstraint(Sketcher.Constraint("Coincident", 1, 2, 2, 1))
sketch11.addConstraint(Sketcher.Constraint("Coincident", 2, 2, 3, 1))
sketch11.addConstraint(Sketcher.Constraint("Coincident", 3, 2, 0, 1))
sketch11.addConstraint(Sketcher.Constraint("Coincident", 4, 2, 5, 1))
sketch11.addConstraint(Sketcher.Constraint("Coincident", 5, 2, 6, 1))
sketch11.addConstraint(Sketcher.Constraint("Coincident", 6, 2, 7, 1))
sketch11.addConstraint(Sketcher.Constraint("Coincident", 7, 2, 4, 1))
sketch11.addConstraint(Sketcher.Constraint("Coincident", 8, 2, 9, 1))
sketch11.addConstraint(Sketcher.Constraint("Coincident", 9, 2, 10, 1))
sketch11.addConstraint(Sketcher.Constraint("Coincident", 10, 2, 11, 1))
sketch11.addConstraint(Sketcher.Constraint("Coincident", 11, 2, 8, 1))
sketch11.addConstraint(Sketcher.Constraint("Horizontal", 0))
sketch11.addConstraint(Sketcher.Constraint("Vertical", 1))
sketch11.addConstraint(Sketcher.Constraint("Horizontal", 2))
sketch11.addConstraint(Sketcher.Constraint("Vertical", 3))
sketch11.addConstraint(Sketcher.Constraint("Vertical", 4))
sketch11.addConstraint(Sketcher.Constraint("Horizontal", 5))
sketch11.addConstraint(Sketcher.Constraint("Vertical", 6))
sketch11.addConstraint(Sketcher.Constraint("Horizontal", 7))
sketch11.addConstraint(Sketcher.Constraint("Vertical", 8))
sketch11.addConstraint(Sketcher.Constraint("Horizontal", 9))
sketch11.addConstraint(Sketcher.Constraint("Vertical", 10))
sketch11.addConstraint(Sketcher.Constraint("Horizontal", 11))
sketch11.addConstraint(Sketcher.Constraint("Symmetric", 7, 2, 8, 2, -1))
sketch11.addConstraint(Sketcher.Constraint("Symmetric", 5, 2, 10, 2, -1))
sketch11.addConstraint(Sketcher.Constraint("Horizontal", 3, 2, 6, 2))
sketch11.addConstraint(Sketcher.Constraint("Equal", 2, 5))
sketch11.addConstraint(Sketcher.Constraint("DistanceY", 1, 2, 1, 1, Q("0.3 in")))
sketch11.addConstraint(Sketcher.Constraint("DistanceY", 4, 1, 4, 2, Q("0.25 in")))
sketch11.addConstraint(Sketcher.Constraint("DistanceX", 0, 1, 0, 2, Q("0.165 in")))
sketch11.addConstraint(Sketcher.Constraint("DistanceX", -1, 1, 0, 2, Q("0.6311 in")))
sketch11.addConstraint(Sketcher.Constraint("DistanceY", -1, 1, 0, 2, 14.15))
sketch11.addConstraint(Sketcher.Constraint("DistanceX", 4, 2, -1, 1, 24.65))
sketch11.setExpression("Constraints[28]", "Params.sketch11_height")
sketch11.setExpression("Constraints[29]", "Params.sketch11_height2")
sketch11.setExpression("Constraints[30]", "Params.sketch11_width")
pad6 = body.newObject("PartDesign::Pad", "Pad005")
pad6.Profile = sketch11
pad6.setExpression("Length", "Params.pad6_length")

sketch12 = body.newObject("Sketcher::SketchObject", "Sketch011")
sketch12.AttachmentSupport = (doc.getObject("XZ_Plane"), [""])
sketch12.MapMode = "FlatFace"
sketch12.AttachmentOffset = App.Placement(V(0, 0, 1), App.Rotation())
sketch12.addGeometry(Part.LineSegment(V(-43.7, -31.7, 0), V(32.5, -31.7, 0)), False)
sketch12.addGeometry(Part.LineSegment(V(32.5, -31.7, 0), V(32.5, 31.8, 0)), False)
sketch12.addGeometry(Part.LineSegment(V(32.5, 31.8, 0), V(-43.7, 31.8, 0)), False)
sketch12.addGeometry(Part.LineSegment(V(-43.7, 31.8, 0), V(-43.7, -31.7, 0)), False)
sketch12.addGeometry(Part.Circle(V(-39.9, -29.5, 0), V(0, 0, 1), 1.1), False)
sketch12.addGeometry(Part.LineSegment(V(-24.6, 14.2, 0), V(-20.5, 14.2, 0)), False)
sketch12.addGeometry(Part.LineSegment(V(-20.5, 14.2, 0), V(-20.5, -14.2, 0)), False)
sketch12.addGeometry(Part.LineSegment(V(-20.5, -14.2, 0), V(-24.6, -14.2, 0)), False)
sketch12.addGeometry(Part.LineSegment(V(-24.6, -14.2, 0), V(-24.6, 14.2, 0)), False)
sketch12.addGeometry(Part.Circle(V(28.7, -29.5, 0), V(0, 0, 1), 1.1), False)
sketch12.addGeometry(Part.LineSegment(V(11.8, 6.5, 0), V(16, 6.5, 0)), False)
sketch12.addGeometry(Part.LineSegment(V(16, 6.5, 0), V(16, -20.5, 0)), False)
sketch12.addGeometry(Part.LineSegment(V(16, -20.5, 0), V(11.8, -20.5, 0)), False)
sketch12.addGeometry(Part.LineSegment(V(11.8, -20.5, 0), V(11.8, 6.5, 0)), False)
sketch12.addGeometry(Part.LineSegment(V(27, -20.5, 0), V(27, 14.2, 0)), False)
sketch12.addGeometry(Part.LineSegment(V(27, 14.2, 0), V(11.8, 14.2, 0)), False)
sketch12.addGeometry(Part.LineSegment(V(11.8, 14.2, 0), V(11.8, 20.5, 0)), False)
sketch12.addGeometry(Part.LineSegment(V(11.8, 20.5, 0), V(30, 20.5, 0)), False)
sketch12.addGeometry(Part.LineSegment(V(30, 20.5, 0), V(30, -20.5, 0)), False)
sketch12.addGeometry(Part.LineSegment(V(30, -20.5, 0), V(27, -20.5, 0)), False)
sketch12.addGeometry(Part.Circle(V(-39.9, 29.5, 0), V(0, 0, 1), 1.1), False)
sketch12.addGeometry(Part.Circle(V(28.7, 29.5, 0), V(0, 0, 1), 1.1), False)
sketch12.addConstraint(Sketcher.Constraint("Coincident", 0, 2, 1, 1))
sketch12.addConstraint(Sketcher.Constraint("Coincident", 1, 2, 2, 1))
sketch12.addConstraint(Sketcher.Constraint("Coincident", 2, 2, 3, 1))
sketch12.addConstraint(Sketcher.Constraint("Coincident", 3, 2, 0, 1))
sketch12.addConstraint(Sketcher.Constraint("Coincident", 5, 2, 6, 1))
sketch12.addConstraint(Sketcher.Constraint("Coincident", 6, 2, 7, 1))
sketch12.addConstraint(Sketcher.Constraint("Coincident", 7, 2, 8, 1))
sketch12.addConstraint(Sketcher.Constraint("Coincident", 8, 2, 5, 1))
sketch12.addConstraint(Sketcher.Constraint("Coincident", 10, 2, 11, 1))
sketch12.addConstraint(Sketcher.Constraint("Coincident", 11, 2, 12, 1))
sketch12.addConstraint(Sketcher.Constraint("Coincident", 12, 2, 13, 1))
sketch12.addConstraint(Sketcher.Constraint("Coincident", 13, 2, 10, 1))
sketch12.addConstraint(Sketcher.Constraint("Coincident", 14, 2, 15, 1))
sketch12.addConstraint(Sketcher.Constraint("Coincident", 15, 2, 16, 1))
sketch12.addConstraint(Sketcher.Constraint("Coincident", 16, 2, 17, 1))
sketch12.addConstraint(Sketcher.Constraint("Coincident", 17, 2, 18, 1))
sketch12.addConstraint(Sketcher.Constraint("Coincident", 18, 2, 19, 1))
sketch12.addConstraint(Sketcher.Constraint("Coincident", 19, 2, 14, 1))
sketch12.addConstraint(Sketcher.Constraint("Horizontal", 0))
sketch12.addConstraint(Sketcher.Constraint("Vertical", 1))
sketch12.addConstraint(Sketcher.Constraint("Horizontal", 2))
sketch12.addConstraint(Sketcher.Constraint("Vertical", 3))
sketch12.addConstraint(Sketcher.Constraint("Horizontal", 5))
sketch12.addConstraint(Sketcher.Constraint("Vertical", 6))
sketch12.addConstraint(Sketcher.Constraint("Horizontal", 7))
sketch12.addConstraint(Sketcher.Constraint("Vertical", 8))
sketch12.addConstraint(Sketcher.Constraint("Horizontal", 10))
sketch12.addConstraint(Sketcher.Constraint("Vertical", 11))
sketch12.addConstraint(Sketcher.Constraint("Horizontal", 12))
sketch12.addConstraint(Sketcher.Constraint("Vertical", 13))
sketch12.addConstraint(Sketcher.Constraint("Vertical", 14))
sketch12.addConstraint(Sketcher.Constraint("Horizontal", 15))
sketch12.addConstraint(Sketcher.Constraint("Vertical", 16))
sketch12.addConstraint(Sketcher.Constraint("Horizontal", 17))
sketch12.addConstraint(Sketcher.Constraint("Vertical", 18))
sketch12.addConstraint(Sketcher.Constraint("Horizontal", 19))
sketch12.addConstraint(Sketcher.Constraint("Equal", 4, 9))
sketch12.addConstraint(Sketcher.Constraint("Equal", 9, 20))
sketch12.addConstraint(Sketcher.Constraint("Equal", 20, 21))
sketch12.addConstraint(Sketcher.Constraint("Symmetric", 12, 2, 16, 2, -1))
sketch12.addConstraint(Sketcher.Constraint("Horizontal", 4, 3, 9, 3))
sketch12.addConstraint(Sketcher.Constraint("Horizontal", 20, 3, 21, 3))
sketch12.addConstraint(Sketcher.Constraint("Horizontal", 8, 2, 14, 2))
sketch12.addConstraint(Sketcher.Constraint("Horizontal", 12, 2, 18, 2))
sketch12.addConstraint(Sketcher.Constraint("Vertical", 4, 3, 20, 3))
sketch12.addConstraint(Sketcher.Constraint("Vertical", 9, 3, 21, 3))
sketch12.addConstraint(Sketcher.Constraint("Equal", 7, 10))
sketch12.addConstraint(Sketcher.Constraint("DistanceX", 0, 1, 0, 2, Q("3 in")))
sketch12.addConstraint(Sketcher.Constraint("DistanceY", 1, 1, 1, 2, Q("2.5 in")))
sketch12.addConstraint(Sketcher.Constraint("DistanceY", 16, 1, 16, 2, Q("0.25 in")))
sketch12.addConstraint(Sketcher.Constraint("DistanceX", 4, 3, 9, 3, Q("2.7 in")))
sketch12.addConstraint(Sketcher.Constraint("DistanceX", 10, 2, 21, 3, Q("0.5 in")))
sketch12.addConstraint(Sketcher.Constraint("DistanceY", 10, 2, 5, 2, Q("0.3 in")))
sketch12.addConstraint(Sketcher.Constraint("DistanceX", 17, 2, 1, 2, Q("0.1 in")))
sketch12.addConstraint(Sketcher.Constraint("Diameter", 4, 2.1))
sketch12.addConstraint(Sketcher.Constraint("DistanceX", 5, 1, 5, 2, Q("0.165 in")))
sketch12.addConstraint(Sketcher.Constraint("DistanceX", 17, 1, 17, 2, Q("0.715 in")))
sketch12.addConstraint(Sketcher.Constraint("DistanceY", 11, 2, 6, 2, Q("0.25 in")))
sketch12.addConstraint(Sketcher.Constraint("DistanceX", 15, 2, 15, 1, Q("0.5969 in")))
sketch12.addConstraint(Sketcher.Constraint("DistanceX", -1, 1, 14, 2, Q("1.063 in")))
sketch12.addConstraint(Sketcher.Constraint("DistanceY", 5, 2, 2, 2, Q("0.693 in")))
sketch12.addConstraint(Sketcher.Constraint("DistanceY", 6, 2, 6, 1, 28.3))
sketch12.addConstraint(Sketcher.Constraint("DistanceY", -1, 1, 20, 3, Q("1.1615 in")))
sketch12.addConstraint(Sketcher.Constraint("DistanceY", 4, 3, -1, 1, 29.4978))
sketch12.addConstraint(Sketcher.Constraint("DistanceX", 5, 2, -1, 1, 20.459))
sketch12.setExpression("Constraints[47]", "Params.sketch12_width")
sketch12.setExpression("Constraints[48]", "Params.sketch12_height")
sketch12.setExpression("Constraints[49]", "Params.sketch12_height2")
sketch12.setExpression("Constraints[55]", "Params.sketch12_width2")
sketch12.setExpression("Constraints[56]", "Params.sketch12_width3")
pad7 = body.newObject("PartDesign::Pad", "Pad006")
pad7.Profile = sketch12
pad7.setExpression("Length", "Params.pad7_length")

sketch13 = body.newObject("Sketcher::SketchObject", "Sketch012")
sketch13.AttachmentSupport = (doc.getObject("XZ_Plane"), [""])
sketch13.MapMode = "FlatFace"
sketch13.addGeometry(Part.LineSegment(V(30, 18.5, 0), V(11.8, 18.5, 0)), False)
sketch13.addGeometry(Part.LineSegment(V(11.8, 18.5, 0), V(11.8, 20.5, 0)), False)
sketch13.addGeometry(Part.LineSegment(V(11.8, 20.5, 0), V(30, 20.5, 0)), False)
sketch13.addGeometry(Part.LineSegment(V(30, 20.5, 0), V(30, 18.5, 0)), False)
sketch13.addConstraint(Sketcher.Constraint("Coincident", 0, 2, 1, 1))
sketch13.addConstraint(Sketcher.Constraint("Coincident", 1, 2, 2, 1))
sketch13.addConstraint(Sketcher.Constraint("Coincident", 2, 2, 3, 1))
sketch13.addConstraint(Sketcher.Constraint("Coincident", 3, 2, 0, 1))
sketch13.addConstraint(Sketcher.Constraint("Horizontal", 0))
sketch13.addConstraint(Sketcher.Constraint("Vertical", 1))
sketch13.addConstraint(Sketcher.Constraint("Horizontal", 2))
sketch13.addConstraint(Sketcher.Constraint("Vertical", 3))
sketch13.addConstraint(Sketcher.Constraint("DistanceY", 1, 1, 1, 2, 2.0))
sketch13.addConstraint(Sketcher.Constraint("DistanceX", 0, 2, 0, 1, Q("0.715 in")))
sketch13.addConstraint(Sketcher.Constraint("DistanceX", -1, 1, 0, 2, Q("0.4661 in")))
sketch13.addConstraint(Sketcher.Constraint("DistanceY", -1, 1, 0, 2, 18.5))
sketch13.setExpression("Constraints[9]", "Params.sketch13_width")
pad8 = body.newObject("PartDesign::Pad", "Pad007")
pad8.Profile = sketch13
pad8.setExpression("Length", "Params.pad8_length")

doc.recompute()
